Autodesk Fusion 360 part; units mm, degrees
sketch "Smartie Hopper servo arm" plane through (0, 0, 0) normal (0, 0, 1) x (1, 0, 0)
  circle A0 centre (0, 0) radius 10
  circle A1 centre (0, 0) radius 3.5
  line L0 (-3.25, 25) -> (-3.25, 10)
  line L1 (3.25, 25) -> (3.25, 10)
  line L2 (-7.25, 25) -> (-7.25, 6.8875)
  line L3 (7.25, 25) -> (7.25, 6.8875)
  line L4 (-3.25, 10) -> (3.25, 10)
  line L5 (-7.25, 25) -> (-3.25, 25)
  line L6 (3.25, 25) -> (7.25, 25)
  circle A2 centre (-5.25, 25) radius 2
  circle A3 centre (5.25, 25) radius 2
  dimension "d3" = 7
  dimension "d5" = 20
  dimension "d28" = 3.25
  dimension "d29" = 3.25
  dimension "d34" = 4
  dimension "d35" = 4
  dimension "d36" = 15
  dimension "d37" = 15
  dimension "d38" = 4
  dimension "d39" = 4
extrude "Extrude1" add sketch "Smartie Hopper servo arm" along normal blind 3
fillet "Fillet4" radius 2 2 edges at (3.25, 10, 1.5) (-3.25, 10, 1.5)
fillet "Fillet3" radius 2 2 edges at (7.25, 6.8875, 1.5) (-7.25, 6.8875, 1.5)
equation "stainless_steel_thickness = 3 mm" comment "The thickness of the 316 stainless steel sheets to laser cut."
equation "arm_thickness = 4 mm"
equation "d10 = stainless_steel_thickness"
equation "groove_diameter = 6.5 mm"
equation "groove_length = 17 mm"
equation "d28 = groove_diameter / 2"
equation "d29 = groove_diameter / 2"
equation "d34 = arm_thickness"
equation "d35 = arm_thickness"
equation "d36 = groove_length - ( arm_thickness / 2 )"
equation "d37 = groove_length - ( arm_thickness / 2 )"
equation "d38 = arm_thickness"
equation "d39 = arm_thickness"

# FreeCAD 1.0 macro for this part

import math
import FreeCAD as App
import Part
import Sketcher
from FreeCAD import Vector
Q = App.Units.Quantity


def edges_at(feature, points):
    """Names of the edges that pass closest to the given points."""
    edges = feature.Shape.Edges
    near = lambda p: min(range(len(edges)), key=lambda i: edges[i].distToShape(Part.Vertex(*p))[0])
    return sorted({f"Edge{near(p) + 1}" for p in points})

doc = App.newDocument("Part")
body = doc.addObject("PartDesign::Body", "Body")

# Sketch on XY plane
sketch1 = doc.addObject("Sketcher::SketchObject", "Sketch")
body.addObject(sketch1)
sketch1.AttachmentSupport = (doc.XY_Plane, [""])
sketch1.MapMode = "FlatFace"
sketch1.addGeometry([
    Part.ArcOfCircle(Part.Circle(Vector(0, 0, 0), Vector(0, 0, 1), 10), math.radians(136), math.radians(404)),  # 0
    Part.LineSegment(Vector(7.2, 6.9, 0), Vector(7.2, 25, 0)),  # 1
    Part.ArcOfCircle(Part.Circle(Vector(5.2, 25, 0), Vector(0, 0, 1), 2), math.radians(0), math.radians(180)),  # 2
    Part.LineSegment(Vector(3.2, 25, 0), Vector(3.2, 10, 0)),  # 3
    Part.LineSegment(Vector(3.2, 10, 0), Vector(-3.2, 10, 0)),  # 4
    Part.LineSegment(Vector(-3.2, 10, 0), Vector(-3.2, 25, 0)),  # 5
    Part.ArcOfCircle(Part.Circle(Vector(-5.2, 25, 0), Vector(0, 0, 1), 2), math.radians(0), math.radians(180)),  # 6
    Part.LineSegment(Vector(-7.2, 25, 0), Vector(-7.2, 6.9, 0)),  # 7
    Part.Circle(Vector(0, 0, 0), Vector(0, 0, 1), 3.5),  # 8
], False)
sketch1.addConstraint([
    Sketcher.Constraint("Coincident", 0, 2, 1, 1),
    Sketcher.Constraint("Tangent", 1, 2, 2, 1),
    Sketcher.Constraint("Tangent", 2, 2, 3, 1),
    Sketcher.Constraint("Coincident", 3, 2, 4, 1),
    Sketcher.Constraint("Coincident", 4, 2, 5, 1),
    Sketcher.Constraint("Tangent", 5, 2, 6, 1),
    Sketcher.Constraint("Tangent", 6, 2, 7, 1),
    Sketcher.Constraint("Coincident", 7, 2, 0, 1),
    Sketcher.Constraint("Vertical", 1),
    Sketcher.Constraint("Vertical", 3),
    Sketcher.Constraint("Horizontal", 4),
    Sketcher.Constraint("Vertical", 5),
    Sketcher.Constraint("Vertical", 7),
    Sketcher.Constraint("Coincident", 0, 3, -1, 1),
    Sketcher.Constraint("Coincident", 8, 3, -1, 1),
    Sketcher.Constraint("Equal", 2, 6),
    Sketcher.Constraint("Symmetric", 2, 3, 6, 3, -2),
    Sketcher.Constraint("Diameter", 8, Q("7 mm")),
    Sketcher.Constraint("Radius", 0, Q("10 mm")),
    Sketcher.Constraint("Radius", 2, Q("2 mm")),
    Sketcher.Constraint("DistanceY", 3, 2, 3, 1, Q("15 mm")),
    Sketcher.Constraint("DistanceX", -1, 1, 2, 2, Q("3.25 mm")),
    Sketcher.Constraint("DistanceY", -1, 1, 2, 3, Q("25 mm")),
])
pad1 = doc.addObject("PartDesign::Pad", "Pad")
body.addObject(pad1)
pad1.Profile = sketch1
pad1.Length = 3
doc.recompute()

fillet = doc.addObject("PartDesign::Fillet", "Fillet")
body.addObject(fillet)
fillet.Base = (pad1, edges_at(pad1, [(3.25, 10, 1.5), (-3.25, 10, 1.5)]))
fillet.Radius = 2
doc.recompute()

fillet2 = doc.addObject("PartDesign::Fillet", "Fillet001")
body.addObject(fillet2)
fillet2.Base = (fillet, edges_at(fillet, [(7.25, 6.888, 1.5), (-7.25, 6.888, 1.5)]))
fillet2.Radius = 2

doc.recompute()
